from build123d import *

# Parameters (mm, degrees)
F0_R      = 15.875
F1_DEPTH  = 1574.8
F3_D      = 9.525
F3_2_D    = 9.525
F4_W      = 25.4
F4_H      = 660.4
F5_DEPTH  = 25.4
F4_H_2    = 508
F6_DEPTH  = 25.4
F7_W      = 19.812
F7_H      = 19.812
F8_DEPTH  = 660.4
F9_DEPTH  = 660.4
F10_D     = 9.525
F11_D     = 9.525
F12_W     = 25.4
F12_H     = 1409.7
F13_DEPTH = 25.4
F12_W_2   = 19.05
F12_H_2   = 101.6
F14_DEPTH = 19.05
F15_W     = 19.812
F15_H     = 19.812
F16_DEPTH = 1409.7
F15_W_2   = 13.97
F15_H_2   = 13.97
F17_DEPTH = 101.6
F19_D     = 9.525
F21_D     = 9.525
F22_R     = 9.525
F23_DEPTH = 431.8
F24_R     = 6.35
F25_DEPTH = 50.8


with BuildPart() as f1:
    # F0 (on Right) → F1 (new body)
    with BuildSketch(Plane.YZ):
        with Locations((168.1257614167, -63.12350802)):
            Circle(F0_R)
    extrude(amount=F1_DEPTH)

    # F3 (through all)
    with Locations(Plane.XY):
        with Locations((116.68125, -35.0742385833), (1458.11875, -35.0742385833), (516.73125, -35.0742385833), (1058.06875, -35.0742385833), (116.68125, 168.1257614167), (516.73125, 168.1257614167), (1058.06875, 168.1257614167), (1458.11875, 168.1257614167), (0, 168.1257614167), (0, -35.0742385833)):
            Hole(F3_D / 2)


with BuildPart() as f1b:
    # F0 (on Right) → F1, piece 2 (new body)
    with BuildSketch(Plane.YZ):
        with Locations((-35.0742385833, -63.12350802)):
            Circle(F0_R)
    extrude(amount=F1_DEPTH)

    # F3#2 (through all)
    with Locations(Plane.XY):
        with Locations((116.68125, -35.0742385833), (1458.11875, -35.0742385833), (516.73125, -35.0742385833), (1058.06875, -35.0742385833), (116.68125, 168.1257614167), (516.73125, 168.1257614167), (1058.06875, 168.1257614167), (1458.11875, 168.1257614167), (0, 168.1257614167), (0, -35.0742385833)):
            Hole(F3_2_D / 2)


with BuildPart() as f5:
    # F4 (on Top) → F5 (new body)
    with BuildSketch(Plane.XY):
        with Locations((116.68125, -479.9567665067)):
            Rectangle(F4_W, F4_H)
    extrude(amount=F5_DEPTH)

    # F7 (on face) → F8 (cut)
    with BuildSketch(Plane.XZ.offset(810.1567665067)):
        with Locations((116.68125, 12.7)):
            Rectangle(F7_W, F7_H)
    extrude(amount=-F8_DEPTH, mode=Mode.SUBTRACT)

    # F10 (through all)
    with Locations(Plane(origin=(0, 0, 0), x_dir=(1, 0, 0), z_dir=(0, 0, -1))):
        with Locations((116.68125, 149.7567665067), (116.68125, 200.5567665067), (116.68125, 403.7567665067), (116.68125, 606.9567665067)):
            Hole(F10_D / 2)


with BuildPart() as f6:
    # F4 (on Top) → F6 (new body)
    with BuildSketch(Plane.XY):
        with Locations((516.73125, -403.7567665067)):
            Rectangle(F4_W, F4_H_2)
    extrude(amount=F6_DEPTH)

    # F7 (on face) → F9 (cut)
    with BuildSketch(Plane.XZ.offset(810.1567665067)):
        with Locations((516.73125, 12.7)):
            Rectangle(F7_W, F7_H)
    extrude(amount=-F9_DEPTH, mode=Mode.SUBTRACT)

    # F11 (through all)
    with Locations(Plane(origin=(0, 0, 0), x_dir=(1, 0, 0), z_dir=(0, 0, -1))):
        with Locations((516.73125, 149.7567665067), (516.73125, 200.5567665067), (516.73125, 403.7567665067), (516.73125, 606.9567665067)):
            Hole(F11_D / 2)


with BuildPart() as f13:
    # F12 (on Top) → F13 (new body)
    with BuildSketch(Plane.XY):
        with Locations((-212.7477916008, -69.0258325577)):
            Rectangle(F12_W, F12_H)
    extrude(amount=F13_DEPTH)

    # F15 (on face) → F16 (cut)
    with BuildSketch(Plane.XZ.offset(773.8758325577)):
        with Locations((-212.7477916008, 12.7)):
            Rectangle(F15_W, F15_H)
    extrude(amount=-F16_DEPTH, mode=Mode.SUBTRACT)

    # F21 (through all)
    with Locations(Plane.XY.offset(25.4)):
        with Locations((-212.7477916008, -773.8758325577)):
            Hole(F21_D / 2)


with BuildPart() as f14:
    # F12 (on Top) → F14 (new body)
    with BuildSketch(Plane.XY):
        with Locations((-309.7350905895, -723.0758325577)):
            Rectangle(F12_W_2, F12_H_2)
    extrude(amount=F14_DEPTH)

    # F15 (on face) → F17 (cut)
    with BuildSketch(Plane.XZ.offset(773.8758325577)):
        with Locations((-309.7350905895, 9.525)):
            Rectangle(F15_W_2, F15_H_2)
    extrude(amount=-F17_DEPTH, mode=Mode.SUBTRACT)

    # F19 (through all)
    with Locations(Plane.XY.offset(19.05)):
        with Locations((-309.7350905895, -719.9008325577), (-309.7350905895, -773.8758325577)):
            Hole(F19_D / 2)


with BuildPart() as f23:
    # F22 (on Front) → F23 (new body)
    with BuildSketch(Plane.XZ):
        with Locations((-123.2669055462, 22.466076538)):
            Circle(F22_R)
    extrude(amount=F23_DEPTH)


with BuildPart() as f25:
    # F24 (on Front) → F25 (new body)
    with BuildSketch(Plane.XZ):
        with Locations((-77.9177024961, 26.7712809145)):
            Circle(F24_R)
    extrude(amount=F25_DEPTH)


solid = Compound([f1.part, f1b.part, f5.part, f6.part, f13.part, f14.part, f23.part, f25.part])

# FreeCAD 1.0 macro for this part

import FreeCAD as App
import Part
import Sketcher
Q = App.Units.Quantity


def add_polygon(sketch, points):
    """Adds a closed chain of lines whose ends are joined by coincident constraints."""
    first, n = sketch.GeometryCount, len(points)
    for a, b in zip(points, points[1:] + points[:1]):
        sketch.addGeometry(Part.LineSegment(App.Vector(*a, 0), App.Vector(*b, 0)), False)
    for i in range(n):
        sketch.addConstraint(Sketcher.Constraint("Coincident", first + i, 2, first + (i + 1) % n, 1))

doc = App.newDocument("Part")
body = doc.addObject("PartDesign::Body", "Body")

# Sketch on YZ plane
sketch1 = body.newObject("Sketcher::SketchObject", "Sketch")
sketch1.AttachmentSupport = (doc.getObject("YZ_Plane"), [""])
sketch1.MapMode = "FlatFace"
sketch1.addGeometry(Part.Circle(App.Vector(168, -63, 0), App.Vector(0, 0, 1), 16), False)
sketch1.addConstraint(Sketcher.Constraint("Diameter", 0, Q("1.25 in")))
sketch1.addConstraint(Sketcher.Constraint("DistanceX", -1, 1, 0, 3, 168.125761))
sketch1.addConstraint(Sketcher.Constraint("DistanceY", 0, 3, -1, 1, 63.123508))
pad1 = body.newObject("PartDesign::Pad", "Pad")
pad1.Profile = sketch1
pad1.Length = Q("62 in")

# Sketch on XY plane
sketch2 = body.newObject("Sketcher::SketchObject", "Sketch001")
sketch2.AttachmentSupport = (doc.getObject("XY_Plane"), [""])
sketch2.MapMode = "FlatFace"
sketch2.addGeometry(Part.Circle(App.Vector(116.7, -35.1, 0), App.Vector(0, 0, 1), 4.8), False)
sketch2.addGeometry(Part.Circle(App.Vector(1458.1, -35.1, 0), App.Vector(0, 0, 1), 4.8), False)
sketch2.addGeometry(Part.Circle(App.Vector(516.7, -35.1, 0), App.Vector(0, 0, 1), 4.8), False)
sketch2.addGeometry(Part.Circle(App.Vector(1058.1, -35.1, 0), App.Vector(0, 0, 1), 4.8), False)
sketch2.addGeometry(Part.Circle(App.Vector(116.7, 168.1, 0), App.Vector(0, 0, 1), 4.8), False)
sketch2.addGeometry(Part.Circle(App.Vector(516.7, 168.1, 0), App.Vector(0, 0, 1), 4.8), False)
sketch2.addGeometry(Part.Circle(App.Vector(1058.1, 168.1, 0), App.Vector(0, 0, 1), 4.8), False)
sketch2.addGeometry(Part.Circle(App.Vector(1458.1, 168.1, 0), App.Vector(0, 0, 1), 4.8), False)
sketch2.addGeometry(Part.Circle(App.Vector(0, 168.1, 0), App.Vector(0, 0, 1), 4.8), False)
sketch2.addGeometry(Part.Circle(App.Vector(0, -35.1, 0), App.Vector(0, 0, 1), 4.8), False)
sketch2.addConstraint(Sketcher.Constraint("Equal", 0, 1))
sketch2.addConstraint(Sketcher.Constraint("Equal", 1, 2))
sketch2.addConstraint(Sketcher.Constraint("Equal", 2, 3))
sketch2.addConstraint(Sketcher.Constraint("Equal", 3, 4))
sketch2.addConstraint(Sketcher.Constraint("Equal", 4, 5))
sketch2.addConstraint(Sketcher.Constraint("Equal", 5, 6))
sketch2.addConstraint(Sketcher.Constraint("Equal", 6, 7))
sketch2.addConstraint(Sketcher.Constraint("Equal", 7, 8))
sketch2.addConstraint(Sketcher.Constraint("Equal", 8, 9))
sketch2.addConstraint(Sketcher.Constraint("PointOnObject", 8, 3, -2))
sketch2.addConstraint(Sketcher.Constraint("PointOnObject", 9, 3, -2))
sketch2.addConstraint(Sketcher.Constraint("Horizontal", 0, 3, 1, 3))
sketch2.addConstraint(Sketcher.Constraint("Horizontal", 1, 3, 2, 3))
sketch2.addConstraint(Sketcher.Constraint("Horizontal", 2, 3, 3, 3))
sketch2.addConstraint(Sketcher.Constraint("Horizontal", 4, 3, 5, 3))
sketch2.addConstraint(Sketcher.Constraint("Horizontal", 5, 3, 6, 3))
sketch2.addConstraint(Sketcher.Constraint("Horizontal", 6, 3, 7, 3))
sketch2.addConstraint(Sketcher.Constraint("Horizontal", 7, 3, 8, 3))
sketch2.addConstraint(Sketcher.Constraint("Horizontal", 3, 3, 9, 3))
sketch2.addConstraint(Sketcher.Constraint("Vertical", 0, 3, 4, 3))
sketch2.addConstraint(Sketcher.Constraint("Vertical", 2, 3, 5, 3))
sketch2.addConstraint(Sketcher.Constraint("Vertical", 3, 3, 6, 3))
sketch2.addConstraint(Sketcher.Constraint("Vertical", 1, 3, 7, 3))
sketch2.addConstraint(Sketcher.Constraint("Diameter", 0, Q("0.375 in")))
sketch2.addConstraint(Sketcher.Constraint("DistanceY", 0, 3, 4, 3, Q("8 in")))
sketch2.addConstraint(Sketcher.Constraint("DistanceX", 0, 3, 2, 3, Q("15.75 in")))
sketch2.addConstraint(Sketcher.Constraint("DistanceX", 3, 3, 1, 3, Q("15.75 in")))
sketch2.addConstraint(Sketcher.Constraint("DistanceX", -1, 1, 0, 3, Q("4.59375 in")))
sketch2.addConstraint(Sketcher.Constraint("DistanceX", -1, 1, 1, 3, Q("57.40625 in")))
sketch2.addConstraint(Sketcher.Constraint("DistanceY", 0, 3, -1, 1, 35.074239))
doc.recompute()
hole = body.newObject("PartDesign::Hole", "Hole")
hole.Profile = sketch2
hole.ThreadType = "None"
hole.Diameter = Q("0.375 in")
hole.DepthType = "ThroughAll"
body2 = doc.addObject("PartDesign::Body", "Body001")

# Sketch on YZ plane
sketch3 = body2.newObject("Sketcher::SketchObject", "Sketch002")
sketch3.AttachmentSupport = (doc.getObject("YZ_Plane001"), [""])
sketch3.MapMode = "FlatFace"
sketch3.addGeometry(Part.Circle(App.Vector(-35, -63, 0), App.Vector(0, 0, 1), 16), False)
sketch3.addConstraint(Sketcher.Constraint("Diameter", 0, Q("1.25 in")))
sketch3.addConstraint(Sketcher.Constraint("DistanceX", 0, 3, -1, 1, 35.074239))
sketch3.addConstraint(Sketcher.Constraint("DistanceY", 0, 3, -1, 1, 63.123508))
pad2 = body2.newObject("PartDesign::Pad", "Pad001")
pad2.Profile = sketch3
pad2.Length = Q("62 in")

# Sketch on XY plane
sketch4 = body2.newObject("Sketcher::SketchObject", "Sketch003")
sketch4.AttachmentSupport = (doc.getObject("XY_Plane001"), [""])
sketch4.MapMode = "FlatFace"
sketch4.addGeometry(Part.Circle(App.Vector(116.7, -35.1, 0), App.Vector(0, 0, 1), 4.8), False)
sketch4.addGeometry(Part.Circle(App.Vector(1458.1, -35.1, 0), App.Vector(0, 0, 1), 4.8), False)
sketch4.addGeometry(Part.Circle(App.Vector(516.7, -35.1, 0), App.Vector(0, 0, 1), 4.8), False)
sketch4.addGeometry(Part.Circle(App.Vector(1058.1, -35.1, 0), App.Vector(0, 0, 1), 4.8), False)
sketch4.addGeometry(Part.Circle(App.Vector(116.7, 168.1, 0), App.Vector(0, 0, 1), 4.8), False)
sketch4.addGeometry(Part.Circle(App.Vector(516.7, 168.1, 0), App.Vector(0, 0, 1), 4.8), False)
sketch4.addGeometry(Part.Circle(App.Vector(1058.1, 168.1, 0), App.Vector(0, 0, 1), 4.8), False)
sketch4.addGeometry(Part.Circle(App.Vector(1458.1, 168.1, 0), App.Vector(0, 0, 1), 4.8), False)
sketch4.addGeometry(Part.Circle(App.Vector(0, 168.1, 0), App.Vector(0, 0, 1), 4.8), False)
sketch4.addGeometry(Part.Circle(App.Vector(0, -35.1, 0), App.Vector(0, 0, 1), 4.8), False)
sketch4.addConstraint(Sketcher.Constraint("Equal", 0, 1))
sketch4.addConstraint(Sketcher.Constraint("Equal", 1, 2))
sketch4.addConstraint(Sketcher.Constraint("Equal", 2, 3))
sketch4.addConstraint(Sketcher.Constraint("Equal", 3, 4))
sketch4.addConstraint(Sketcher.Constraint("Equal", 4, 5))
sketch4.addConstraint(Sketcher.Constraint("Equal", 5, 6))
sketch4.addConstraint(Sketcher.Constraint("Equal", 6, 7))
sketch4.addConstraint(Sketcher.Constraint("Equal", 7, 8))
sketch4.addConstraint(Sketcher.Constraint("Equal", 8, 9))
sketch4.addConstraint(Sketcher.Constraint("PointOnObject", 8, 3, -2))
sketch4.addConstraint(Sketcher.Constraint("PointOnObject", 9, 3, -2))
sketch4.addConstraint(Sketcher.Constraint("Horizontal", 0, 3, 1, 3))
sketch4.addConstraint(Sketcher.Constraint("Horizontal", 1, 3, 2, 3))
sketch4.addConstraint(Sketcher.Constraint("Horizontal", 2, 3, 3, 3))
sketch4.addConstraint(Sketcher.Constraint("Horizontal", 4, 3, 5, 3))
sketch4.addConstraint(Sketcher.Constraint("Horizontal", 5, 3, 6, 3))
sketch4.addConstraint(Sketcher.Constraint("Horizontal", 6, 3, 7, 3))
sketch4.addConstraint(Sketcher.Constraint("Horizontal", 7, 3, 8, 3))
sketch4.addConstraint(Sketcher.Constraint("Horizontal", 3, 3, 9, 3))
sketch4.addConstraint(Sketcher.Constraint("Vertical", 0, 3, 4, 3))
sketch4.addConstraint(Sketcher.Constraint("Vertical", 2, 3, 5, 3))
sketch4.addConstraint(Sketcher.Constraint("Vertical", 3, 3, 6, 3))
sketch4.addConstraint(Sketcher.Constraint("Vertical", 1, 3, 7, 3))
sketch4.addConstraint(Sketcher.Constraint("Diameter", 0, Q("0.375 in")))
sketch4.addConstraint(Sketcher.Constraint("DistanceY", 0, 3, 4, 3, Q("8 in")))
sketch4.addConstraint(Sketcher.Constraint("DistanceX", 0, 3, 2, 3, Q("15.75 in")))
sketch4.addConstraint(Sketcher.Constraint("DistanceX", 3, 3, 1, 3, Q("15.75 in")))
sketch4.addConstraint(Sketcher.Constraint("DistanceX", -1, 1, 0, 3, Q("4.59375 in")))
sketch4.addConstraint(Sketcher.Constraint("DistanceX", -1, 1, 1, 3, Q("57.40625 in")))
sketch4.addConstraint(Sketcher.Constraint("DistanceY", 0, 3, -1, 1, 35.074239))
doc.recompute()
hole2 = body2.newObject("PartDesign::Hole", "Hole001")
hole2.Profile = sketch4
hole2.ThreadType = "None"
hole2.Diameter = Q("0.375 in")
hole2.DepthType = "ThroughAll"
body3 = doc.addObject("PartDesign::Body", "Body002")

# Sketch on XY plane
sketch5 = body3.newObject("Sketcher::SketchObject", "Sketch004")
sketch5.AttachmentSupport = (doc.getObject("XY_Plane002"), [""])
sketch5.MapMode = "FlatFace"
add_polygon(sketch5, [(104, -150), (104, -810), (129, -810), (129, -150)])  # lines 0-3
sketch5.addConstraint(Sketcher.Constraint("Vertical", 0))
sketch5.addConstraint(Sketcher.Constraint("Horizontal", 1))
sketch5.addConstraint(Sketcher.Constraint("Vertical", 2))
sketch5.addConstraint(Sketcher.Constraint("Horizontal", 3))
sketch5.addConstraint(Sketcher.Constraint("DistanceX", 1, 1, 1, 2, Q("1 in")))
sketch5.addConstraint(Sketcher.Constraint("DistanceY", 0, 2, 0, 1, Q("26 in")))
sketch5.addConstraint(Sketcher.Constraint("DistanceX", -1, 1, 0, 2, Q("4.09375 in")))
sketch5.addConstraint(Sketcher.Constraint("DistanceY", 0, 2, -1, 1, 810.156767))
pad3 = body3.newObject("PartDesign::Pad", "Pad002")
pad3.Profile = sketch5
pad3.Length = Q("1 in")

# Sketch on XZ plane
sketch6 = body3.newObject("Sketcher::SketchObject", "Sketch005")
sketch6.AttachmentSupport = (doc.getObject("XZ_Plane002"), [""])
sketch6.MapMode = "FlatFace"
sketch6.AttachmentOffset = App.Placement(App.Vector(0, 0, 810.156767), App.Rotation())
add_polygon(sketch6, [(107, 23), (107, 3), (127, 3), (127, 23)])  # lines 0-3
sketch6.addConstraint(Sketcher.Constraint("Vertical", 0))
sketch6.addConstraint(Sketcher.Constraint("Horizontal", 1))
sketch6.addConstraint(Sketcher.Constraint("Vertical", 2))
sketch6.addConstraint(Sketcher.Constraint("Horizontal", 3))
sketch6.addConstraint(Sketcher.Constraint("Equal", 3, 0))
sketch6.addConstraint(Sketcher.Constraint("DistanceX", 1, 1, 1, 2, Q("0.78 in")))
sketch6.addConstraint(Sketcher.Constraint("DistanceY", -1, 1, 0, 2, Q("0.11 in")))
sketch6.addConstraint(Sketcher.Constraint("DistanceX", -1, 1, 0, 2, 106.77525))
pocket1 = body3.newObject("PartDesign::Pocket", "Pocket")
pocket1.Profile = sketch6
pocket1.Length = Q("26 in")

# Sketch on XY plane
sketch7 = body3.newObject("Sketcher::SketchObject", "Sketch006")
sketch7.AttachmentSupport = (doc.getObject("XY_Plane002"), [""])
sketch7.MapMode = "FlatFace"
sketch7.addGeometry(Part.Circle(App.Vector(116.7, -149.8, 0), App.Vector(0, 0, 1), 4.8), False)
sketch7.addGeometry(Part.Circle(App.Vector(116.7, -200.6, 0), App.Vector(0, 0, 1), 4.8), False)
sketch7.addGeometry(Part.Circle(App.Vector(116.7, -403.8, 0), App.Vector(0, 0, 1), 4.8), False)
sketch7.addGeometry(Part.Circle(App.Vector(116.7, -607, 0), App.Vector(0, 0, 1), 4.8), False)
sketch7.addConstraint(Sketcher.Constraint("Equal", 0, 1))
sketch7.addConstraint(Sketcher.Constraint("Equal", 1, 2))
sketch7.addConstraint(Sketcher.Constraint("Equal", 2, 3))
sketch7.addConstraint(Sketcher.Constraint("Vertical", 0, 3, 1, 3))
sketch7.addConstraint(Sketcher.Constraint("Vertical", 1, 3, 2, 3))
sketch7.addConstraint(Sketcher.Constraint("Vertical", 2, 3, 3, 3))
sketch7.addConstraint(Sketcher.Constraint("Diameter", 0, Q("0.375 in")))
sketch7.addConstraint(Sketcher.Constraint("DistanceY", 1, 3, 0, 3, Q("2 in")))
sketch7.addConstraint(Sketcher.Constraint("DistanceY", 2, 3, 1, 3, Q("8 in")))
sketch7.addConstraint(Sketcher.Constraint("DistanceY", 3, 3, 2, 3, Q("8 in")))
sketch7.addConstraint(Sketcher.Constraint("DistanceX", -1, 1, 0, 3, Q("4.59375 in")))
sketch7.addConstraint(Sketcher.Constraint("DistanceY", 0, 3, -1, 1, 149.756767))
doc.recompute()
hole3 = body3.newObject("PartDesign::Hole", "Hole002")
hole3.Profile = sketch7
hole3.ThreadType = "None"
hole3.Diameter = Q("0.375 in")
hole3.DepthType = "ThroughAll"
hole3.Reversed = True
body4 = doc.addObject("PartDesign::Body", "Body003")

# Sketch on XY plane
sketch8 = body4.newObject("Sketcher::SketchObject", "Sketch007")
sketch8.AttachmentSupport = (doc.getObject("XY_Plane003"), [""])
sketch8.MapMode = "FlatFace"
add_polygon(sketch8, [(504, -150), (504, -658), (529, -658), (529, -150)])  # lines 0-3
sketch8.addConstraint(Sketcher.Constraint("Vertical", 0))
sketch8.addConstraint(Sketcher.Constraint("Horizontal", 1))
sketch8.addConstraint(Sketcher.Constraint("Vertical", 2))
sketch8.addConstraint(Sketcher.Constraint("Horizontal", 3))
sketch8.addConstraint(Sketcher.Constraint("DistanceX", 1, 1, 1, 2, Q("1 in")))
sketch8.addConstraint(Sketcher.Constraint("DistanceY", 0, 2, 0, 1, Q("20 in")))
sketch8.addConstraint(Sketcher.Constraint("DistanceX", -1, 1, 0, 2, Q("19.84375 in")))
sketch8.addConstraint(Sketcher.Constraint("DistanceY", 0, 2, -1, 1, 657.756767))
pad4 = body4.newObject("PartDesign::Pad", "Pad003")
pad4.Profile = sketch8
pad4.Length = Q("1 in")

# Sketch on XZ plane
sketch9 = body4.newObject("Sketcher::SketchObject", "Sketch008")
sketch9.AttachmentSupport = (doc.getObject("XZ_Plane003"), [""])
sketch9.MapMode = "FlatFace"
sketch9.AttachmentOffset = App.Placement(App.Vector(0, 0, 810.156767), App.Rotation())
add_polygon(sketch9, [(507, 23), (507, 3), (527, 3), (527, 23)])  # lines 0-3
sketch9.addConstraint(Sketcher.Constraint("Vertical", 0))
sketch9.addConstraint(Sketcher.Constraint("Horizontal", 1))
sketch9.addConstraint(Sketcher.Constraint("Vertical", 2))
sketch9.addConstraint(Sketcher.Constraint("Horizontal", 3))
sketch9.addConstraint(Sketcher.Constraint("Equal", 3, 0))
sketch9.addConstraint(Sketcher.Constraint("DistanceX", 1, 1, 1, 2, Q("0.78 in")))
sketch9.addConstraint(Sketcher.Constraint("DistanceY", -1, 1, 0, 2, Q("0.11 in")))
sketch9.addConstraint(Sketcher.Constraint("DistanceX", -1, 1, 0, 2, 506.82525))
pocket2 = body4.newObject("PartDesign::Pocket", "Pocket001")
pocket2.Profile = sketch9
pocket2.Length = Q("26 in")

# Sketch on XY plane
sketch10 = body4.newObject("Sketcher::SketchObject", "Sketch009")
sketch10.AttachmentSupport = (doc.getObject("XY_Plane003"), [""])
sketch10.MapMode = "FlatFace"
sketch10.addGeometry(Part.Circle(App.Vector(516.7, -149.8, 0), App.Vector(0, 0, 1), 4.8), False)
sketch10.addGeometry(Part.Circle(App.Vector(516.7, -200.6, 0), App.Vector(0, 0, 1), 4.8), False)
sketch10.addGeometry(Part.Circle(App.Vector(516.7, -403.8, 0), App.Vector(0, 0, 1), 4.8), False)
sketch10.addGeometry(Part.Circle(App.Vector(516.7, -607, 0), App.Vector(0, 0, 1), 4.8), False)
sketch10.addConstraint(Sketcher.Constraint("Equal", 0, 1))
sketch10.addConstraint(Sketcher.Constraint("Equal", 1, 2))
sketch10.addConstraint(Sketcher.Constraint("Equal", 2, 3))
sketch10.addConstraint(Sketcher.Constraint("Vertical", 0, 3, 1, 3))
sketch10.addConstraint(Sketcher.Constraint("Vertical", 1, 3, 2, 3))
sketch10.addConstraint(Sketcher.Constraint("Vertical", 2, 3, 3, 3))
sketch10.addConstraint(Sketcher.Constraint("Diameter", 0, Q("0.375 in")))
sketch10.addConstraint(Sketcher.Constraint("DistanceY", 1, 3, 0, 3, Q("2 in")))
sketch10.addConstraint(Sketcher.Constraint("DistanceY", 2, 3, 1, 3, Q("8 in")))
sketch10.addConstraint(Sketcher.Constraint("DistanceY", 3, 3, 2, 3, Q("8 in")))
sketch10.addConstraint(Sketcher.Constraint("DistanceX", -1, 1, 0, 3, Q("20.34375 in")))
sketch10.addConstraint(Sketcher.Constraint("DistanceY", 0, 3, -1, 1, 149.756767))
doc.recompute()
hole4 = body4.newObject("PartDesign::Hole", "Hole003")
hole4.Profile = sketch10
hole4.ThreadType = "None"
hole4.Diameter = Q("0.375 in")
hole4.DepthType = "ThroughAll"
hole4.Reversed = True
body5 = doc.addObject("PartDesign::Body", "Body004")

# Sketch on XY plane
sketch11 = body5.newObject("Sketcher::SketchObject", "Sketch010")
sketch11.AttachmentSupport = (doc.getObject("XY_Plane004"), [""])
sketch11.MapMode = "FlatFace"
add_polygon(sketch11, [(-225, 636), (-225, -774), (-200, -774), (-200, 636)])  # lines 0-3
sketch11.addConstraint(Sketcher.Constraint("Vertical", 0))
sketch11.addConstraint(Sketcher.Constraint("Horizontal", 1))
sketch11.addConstraint(Sketcher.Constraint("Vertical", 2))
sketch11.addConstraint(Sketcher.Constraint("Horizontal", 3))
sketch11.addConstraint(Sketcher.Constraint("DistanceX", 1, 1, 1, 2, Q("1 in")))
sketch11.addConstraint(Sketcher.Constraint("DistanceY", 0, 2, 0, 1, Q("55.5 in")))
sketch11.addConstraint(Sketcher.Constraint("DistanceX", 0, 2, -1, 1, 225.447792))
sketch11.addConstraint(Sketcher.Constraint("DistanceY", 0, 2, -1, 1, 773.875833))
pad5 = body5.newObject("PartDesign::Pad", "Pad004")
pad5.Profile = sketch11
pad5.Length = Q("1 in")

# Sketch on XZ plane
sketch12 = body5.newObject("Sketcher::SketchObject", "Sketch011")
sketch12.AttachmentSupport = (doc.getObject("XZ_Plane004"), [""])
sketch12.MapMode = "FlatFace"
sketch12.AttachmentOffset = App.Placement(App.Vector(0, 0, 773.875833), App.Rotation())
add_polygon(sketch12, [(-223, 23), (-223, 3), (-203, 3), (-203, 23)])  # lines 0-3
sketch12.addConstraint(Sketcher.Constraint("Vertical", 0))
sketch12.addConstraint(Sketcher.Constraint("Horizontal", 1))
sketch12.addConstraint(Sketcher.Constraint("Vertical", 2))
sketch12.addConstraint(Sketcher.Constraint("Horizontal", 3))
sketch12.addConstraint(Sketcher.Constraint("Equal", 3, 0))
sketch12.addConstraint(Sketcher.Constraint("DistanceX", 1, 1, 1, 2, Q("0.78 in")))
sketch12.addConstraint(Sketcher.Constraint("DistanceY", -1, 1, 0, 2, Q("0.11 in")))
sketch12.addConstraint(Sketcher.Constraint("DistanceX", 0, 2, -1, 1, 222.653792))
pocket3 = body5.newObject("PartDesign::Pocket", "Pocket002")
pocket3.Profile = sketch12
pocket3.Length = Q("55.5 in")

# Sketch on XY plane
sketch13 = body5.newObject("Sketcher::SketchObject", "Sketch012")
sketch13.AttachmentSupport = (doc.getObject("XY_Plane004"), [""])
sketch13.MapMode = "FlatFace"
sketch13.AttachmentOffset = App.Placement(App.Vector(0, 0, 1 * 25.4), App.Rotation())
sketch13.addGeometry(Part.Circle(App.Vector(-212.7, -773.9, 0), App.Vector(0, 0, 1), 4.8), False)
sketch13.addConstraint(Sketcher.Constraint("Diameter", 0, Q("0.375 in")))
sketch13.addConstraint(Sketcher.Constraint("DistanceX", 0, 3, -1, 1, 212.747792))
sketch13.addConstraint(Sketcher.Constraint("DistanceY", 0, 3, -1, 1, 773.875833))
doc.recompute()
hole5 = body5.newObject("PartDesign::Hole", "Hole004")
hole5.Profile = sketch13
hole5.ThreadType = "None"
hole5.Diameter = Q("0.375 in")
hole5.DepthType = "ThroughAll"
body6 = doc.addObject("PartDesign::Body", "Body005")

# Sketch on XY plane
sketch14 = body6.newObject("Sketcher::SketchObject", "Sketch013")
sketch14.AttachmentSupport = (doc.getObject("XY_Plane005"), [""])
sketch14.MapMode = "FlatFace"
add_polygon(sketch14, [(-319, -672), (-319, -774), (-300, -774), (-300, -672)])  # lines 0-3
sketch14.addConstraint(Sketcher.Constraint("Vertical", 0))
sketch14.addConstraint(Sketcher.Constraint("Horizontal", 1))
sketch14.addConstraint(Sketcher.Constraint("Vertical", 2))
sketch14.addConstraint(Sketcher.Constraint("Horizontal", 3))
sketch14.addConstraint(Sketcher.Constraint("DistanceY", 0, 2, 0, 1, Q("4 in")))
sketch14.addConstraint(Sketcher.Constraint("DistanceX", 1, 1, 1, 2, Q("0.75 in")))
sketch14.addConstraint(Sketcher.Constraint("DistanceX", 0, 2, -1, 1, 319.260091))
sketch14.addConstraint(Sketcher.Constraint("DistanceY", 0, 2, -1, 1, 773.875833))
pad6 = body6.newObject("PartDesign::Pad", "Pad005")
pad6.Profile = sketch14
pad6.Length = Q("0.75 in")

# Sketch on XZ plane
sketch15 = body6.newObject("Sketcher::SketchObject", "Sketch014")
sketch15.AttachmentSupport = (doc.getObject("XZ_Plane005"), [""])
sketch15.MapMode = "FlatFace"
sketch15.AttachmentOffset = App.Placement(App.Vector(0, 0, 773.875833), App.Rotation())
add_polygon(sketch15, [(-317, 17), (-317, 3), (-303, 3), (-303, 17)])  # lines 0-3
sketch15.addConstraint(Sketcher.Constraint("Vertical", 0))
sketch15.addConstraint(Sketcher.Constraint("Horizontal", 1))
sketch15.addConstraint(Sketcher.Constraint("Vertical", 2))
sketch15.addConstraint(Sketcher.Constraint("Horizontal", 3))
sketch15.addConstraint(Sketcher.Constraint("Equal", 3, 0))
sketch15.addConstraint(Sketcher.Constraint("DistanceX", 1, 1, 1, 2, Q("0.55 in")))
sketch15.addConstraint(Sketcher.Constraint("DistanceY", -1, 1, 0, 2, Q("0.1 in")))
sketch15.addConstraint(Sketcher.Constraint("DistanceX", 0, 2, -1, 1, 316.720091))
pocket4 = body6.newObject("PartDesign::Pocket", "Pocket003")
pocket4.Profile = sketch15
pocket4.Length = Q("4 in")

# Sketch on XY plane
sketch16 = body6.newObject("Sketcher::SketchObject", "Sketch015")
sketch16.AttachmentSupport = (doc.getObject("XY_Plane005"), [""])
sketch16.MapMode = "FlatFace"
sketch16.AttachmentOffset = App.Placement(App.Vector(0, 0, 0.75 * 25.4), App.Rotation())
sketch16.addGeometry(Part.Circle(App.Vector(-309.7, -719.9, 0), App.Vector(0, 0, 1), 4.8), False)
sketch16.addGeometry(Part.Circle(App.Vector(-309.7, -773.9, 0), App.Vector(0, 0, 1), 4.8), False)
sketch16.addConstraint(Sketcher.Constraint("Equal", 0, 1))
sketch16.addConstraint(Sketcher.Constraint("Vertical", 0, 3, 1, 3))
sketch16.addConstraint(Sketcher.Constraint("Diameter", 0, Q("0.375 in")))
sketch16.addConstraint(Sketcher.Constraint("DistanceY", 1, 3, 0, 3, Q("2.125 in")))
sketch16.addConstraint(Sketcher.Constraint("DistanceX", 0, 3, -1, 1, 309.735091))
sketch16.addConstraint(Sketcher.Constraint("DistanceY", 0, 3, -1, 1, 719.900833))
doc.recompute()
hole6 = body6.newObject("PartDesign::Hole", "Hole005")
hole6.Profile = sketch16
hole6.ThreadType = "None"
hole6.Diameter = Q("0.375 in")
hole6.DepthType = "ThroughAll"
body7 = doc.addObject("PartDesign::Body", "Body006")

# Sketch on XZ plane
sketch17 = body7.newObject("Sketcher::SketchObject", "Sketch016")
sketch17.AttachmentSupport = (doc.getObject("XZ_Plane006"), [""])
sketch17.MapMode = "FlatFace"
sketch17.addGeometry(Part.Circle(App.Vector(-123, 22, 0), App.Vector(0, 0, 1), 10), False)
sketch17.addConstraint(Sketcher.Constraint("Diameter", 0, Q("0.75 in")))
sketch17.addConstraint(Sketcher.Constraint("DistanceX", 0, 3, -1, 1, 123.266906))
sketch17.addConstraint(Sketcher.Constraint("DistanceY", -1, 1, 0, 3, 22.466077))
pad7 = body7.newObject("PartDesign::Pad", "Pad006")
pad7.Profile = sketch17
pad7.Length = Q("17 in")
body8 = doc.addObject("PartDesign::Body", "Body007")

# Sketch on XZ plane
sketch18 = body8.newObject("Sketcher::SketchObject", "Sketch017")
sketch18.AttachmentSupport = (doc.getObject("XZ_Plane007"), [""])
sketch18.MapMode = "FlatFace"
sketch18.addGeometry(Part.Circle(App.Vector(-78, 27, 0), App.Vector(0, 0, 1), 6), False)
sketch18.addConstraint(Sketcher.Constraint("Diameter", 0, Q("0.5 in")))
sketch18.addConstraint(Sketcher.Constraint("DistanceY", -1, 1, 0, 3, 26.771281))
sketch18.addConstraint(Sketcher.Constraint("DistanceX", 0, 3, -1, 1, 77.917702))
pad8 = body8.newObject("PartDesign::Pad", "Pad007")
pad8.Profile = sketch18
pad8.Length = Q("2 in")

doc.recompute()
